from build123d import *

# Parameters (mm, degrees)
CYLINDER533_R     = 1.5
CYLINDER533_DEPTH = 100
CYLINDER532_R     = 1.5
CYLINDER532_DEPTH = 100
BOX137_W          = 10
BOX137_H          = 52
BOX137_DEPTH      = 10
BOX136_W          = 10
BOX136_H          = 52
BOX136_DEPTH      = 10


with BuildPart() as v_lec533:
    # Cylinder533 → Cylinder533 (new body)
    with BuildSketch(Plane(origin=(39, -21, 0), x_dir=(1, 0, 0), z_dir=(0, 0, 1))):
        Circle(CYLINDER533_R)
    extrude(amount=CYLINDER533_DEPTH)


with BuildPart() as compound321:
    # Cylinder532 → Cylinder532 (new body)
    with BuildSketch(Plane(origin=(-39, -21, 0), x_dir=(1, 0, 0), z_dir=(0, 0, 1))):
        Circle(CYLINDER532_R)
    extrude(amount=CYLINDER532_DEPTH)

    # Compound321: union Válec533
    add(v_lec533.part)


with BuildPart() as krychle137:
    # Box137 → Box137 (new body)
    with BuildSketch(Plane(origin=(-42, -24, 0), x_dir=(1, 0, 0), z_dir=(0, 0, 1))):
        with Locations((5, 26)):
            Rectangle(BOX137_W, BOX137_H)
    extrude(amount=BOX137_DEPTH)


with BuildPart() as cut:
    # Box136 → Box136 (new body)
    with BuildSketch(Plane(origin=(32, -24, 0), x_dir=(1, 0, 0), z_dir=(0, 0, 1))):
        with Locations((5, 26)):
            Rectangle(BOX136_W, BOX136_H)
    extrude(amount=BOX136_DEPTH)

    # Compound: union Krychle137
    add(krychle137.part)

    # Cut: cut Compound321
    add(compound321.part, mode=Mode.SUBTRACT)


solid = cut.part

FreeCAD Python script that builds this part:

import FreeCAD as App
import Part
import Sketcher
from FreeCAD import Vector
Q = App.Units.Quantity


def add_polygon(sketch, points):
    """Adds a closed chain of lines whose ends are joined by coincident constraints."""
    first, n = sketch.GeometryCount, len(points)
    for a, b in zip(points, points[1:] + points[:1]):
        sketch.addGeometry(Part.LineSegment(App.Vector(*a, 0), App.Vector(*b, 0)), False)
    for i in range(n):
        sketch.addConstraint(Sketcher.Constraint("Coincident", first + i, 2, first + (i + 1) % n, 1))

doc = App.newDocument("Part")
body = doc.addObject("PartDesign::Body", "Body")

sketch1 = body.newObject("Sketcher::SketchObject", "Sketch")
sketch1.AttachmentSupport = (doc.getObject("XY_Plane"), [""])
sketch1.MapMode = "FlatFace"
sketch1.addGeometry(Part.Circle(Vector(39, -21, 0), Vector(0, 0, 1), 1.5), False)
sketch1.addConstraint(Sketcher.Constraint("Diameter", 0, Q("3 mm")))
sketch1.addConstraint(Sketcher.Constraint("DistanceX", -1, 1, 0, 3, Q("39 mm")))
sketch1.addConstraint(Sketcher.Constraint("DistanceY", 0, 3, -1, 1, Q("21 mm")))
pad1 = body.newObject("PartDesign::Pad", "Pad")
pad1.Profile = sketch1
pad1.Length = 100
body2 = doc.addObject("PartDesign::Body", "Body001")
body2.AllowCompound = True

sketch2 = body2.newObject("Sketcher::SketchObject", "Sketch001")
sketch2.AttachmentSupport = (doc.getObject("XY_Plane001"), [""])
sketch2.MapMode = "FlatFace"
sketch2.addGeometry(Part.Circle(Vector(-39, -21, 0), Vector(0, 0, 1), 1.5), False)
sketch2.addConstraint(Sketcher.Constraint("Diameter", 0, Q("3 mm")))
sketch2.addConstraint(Sketcher.Constraint("DistanceX", 0, 3, -1, 1, Q("39 mm")))
sketch2.addConstraint(Sketcher.Constraint("DistanceY", 0, 3, -1, 1, Q("21 mm")))
pad2 = body2.newObject("PartDesign::Pad", "Pad001")
pad2.Profile = sketch2
pad2.Length = 100
doc.recompute()

boolean = body2.newObject("PartDesign::Boolean", "Boolean")
boolean.Type = "Fuse"
boolean.addObjects([body])
body3 = doc.addObject("PartDesign::Body", "Body002")

sketch3 = body3.newObject("Sketcher::SketchObject", "Sketch002")
sketch3.AttachmentSupport = (doc.getObject("XY_Plane002"), [""])
sketch3.MapMode = "FlatFace"
add_polygon(sketch3, [(-42, 28), (-42, -24), (-32, -24), (-32, 28)])
sketch3.addConstraint(Sketcher.Constraint("Vertical", 0))
sketch3.addConstraint(Sketcher.Constraint("Horizontal", 1))
sketch3.addConstraint(Sketcher.Constraint("Vertical", 2))
sketch3.addConstraint(Sketcher.Constraint("Horizontal", 3))
sketch3.addConstraint(Sketcher.Constraint("DistanceX", 1, 1, 1, 2, Q("10 mm")))
sketch3.addConstraint(Sketcher.Constraint("DistanceY", 0, 2, 0, 1, Q("52 mm")))
sketch3.addConstraint(Sketcher.Constraint("DistanceX", 0, 2, -1, 1, Q("42 mm")))
sketch3.addConstraint(Sketcher.Constraint("DistanceY", 0, 2, -1, 1, Q("24 mm")))
pad3 = body3.newObject("PartDesign::Pad", "Pad002")
pad3.Profile = sketch3
pad3.Length = 10
body4 = doc.addObject("PartDesign::Body", "Body003")
body4.AllowCompound = True

sketch4 = body4.newObject("Sketcher::SketchObject", "Sketch003")
sketch4.AttachmentSupport = (doc.getObject("XY_Plane003"), [""])
sketch4.MapMode = "FlatFace"
add_polygon(sketch4, [(32, 28), (32, -24), (42, -24), (42, 28)])
sketch4.addConstraint(Sketcher.Constraint("Vertical", 0))
sketch4.addConstraint(Sketcher.Constraint("Horizontal", 1))
sketch4.addConstraint(Sketcher.Constraint("Vertical", 2))
sketch4.addConstraint(Sketcher.Constraint("Horizontal", 3))
sketch4.addConstraint(Sketcher.Constraint("DistanceX", 1, 1, 1, 2, Q("10 mm")))
sketch4.addConstraint(Sketcher.Constraint("DistanceY", 0, 2, 0, 1, Q("52 mm")))
sketch4.addConstraint(Sketcher.Constraint("DistanceX", -1, 1, 0, 2, Q("32 mm")))
sketch4.addConstraint(Sketcher.Constraint("DistanceY", 0, 2, -1, 1, Q("24 mm")))
pad4 = body4.newObject("PartDesign::Pad", "Pad003")
pad4.Profile = sketch4
pad4.Length = 10
doc.recompute()

boolean2 = body4.newObject("PartDesign::Boolean", "Boolean001")
boolean2.Type = "Fuse"
boolean2.addObjects([body3])
doc.recompute()

boolean3 = body4.newObject("PartDesign::Boolean", "Boolean002")
boolean3.Type = "Cut"
boolean3.addObjects([body2])

doc.recompute()
